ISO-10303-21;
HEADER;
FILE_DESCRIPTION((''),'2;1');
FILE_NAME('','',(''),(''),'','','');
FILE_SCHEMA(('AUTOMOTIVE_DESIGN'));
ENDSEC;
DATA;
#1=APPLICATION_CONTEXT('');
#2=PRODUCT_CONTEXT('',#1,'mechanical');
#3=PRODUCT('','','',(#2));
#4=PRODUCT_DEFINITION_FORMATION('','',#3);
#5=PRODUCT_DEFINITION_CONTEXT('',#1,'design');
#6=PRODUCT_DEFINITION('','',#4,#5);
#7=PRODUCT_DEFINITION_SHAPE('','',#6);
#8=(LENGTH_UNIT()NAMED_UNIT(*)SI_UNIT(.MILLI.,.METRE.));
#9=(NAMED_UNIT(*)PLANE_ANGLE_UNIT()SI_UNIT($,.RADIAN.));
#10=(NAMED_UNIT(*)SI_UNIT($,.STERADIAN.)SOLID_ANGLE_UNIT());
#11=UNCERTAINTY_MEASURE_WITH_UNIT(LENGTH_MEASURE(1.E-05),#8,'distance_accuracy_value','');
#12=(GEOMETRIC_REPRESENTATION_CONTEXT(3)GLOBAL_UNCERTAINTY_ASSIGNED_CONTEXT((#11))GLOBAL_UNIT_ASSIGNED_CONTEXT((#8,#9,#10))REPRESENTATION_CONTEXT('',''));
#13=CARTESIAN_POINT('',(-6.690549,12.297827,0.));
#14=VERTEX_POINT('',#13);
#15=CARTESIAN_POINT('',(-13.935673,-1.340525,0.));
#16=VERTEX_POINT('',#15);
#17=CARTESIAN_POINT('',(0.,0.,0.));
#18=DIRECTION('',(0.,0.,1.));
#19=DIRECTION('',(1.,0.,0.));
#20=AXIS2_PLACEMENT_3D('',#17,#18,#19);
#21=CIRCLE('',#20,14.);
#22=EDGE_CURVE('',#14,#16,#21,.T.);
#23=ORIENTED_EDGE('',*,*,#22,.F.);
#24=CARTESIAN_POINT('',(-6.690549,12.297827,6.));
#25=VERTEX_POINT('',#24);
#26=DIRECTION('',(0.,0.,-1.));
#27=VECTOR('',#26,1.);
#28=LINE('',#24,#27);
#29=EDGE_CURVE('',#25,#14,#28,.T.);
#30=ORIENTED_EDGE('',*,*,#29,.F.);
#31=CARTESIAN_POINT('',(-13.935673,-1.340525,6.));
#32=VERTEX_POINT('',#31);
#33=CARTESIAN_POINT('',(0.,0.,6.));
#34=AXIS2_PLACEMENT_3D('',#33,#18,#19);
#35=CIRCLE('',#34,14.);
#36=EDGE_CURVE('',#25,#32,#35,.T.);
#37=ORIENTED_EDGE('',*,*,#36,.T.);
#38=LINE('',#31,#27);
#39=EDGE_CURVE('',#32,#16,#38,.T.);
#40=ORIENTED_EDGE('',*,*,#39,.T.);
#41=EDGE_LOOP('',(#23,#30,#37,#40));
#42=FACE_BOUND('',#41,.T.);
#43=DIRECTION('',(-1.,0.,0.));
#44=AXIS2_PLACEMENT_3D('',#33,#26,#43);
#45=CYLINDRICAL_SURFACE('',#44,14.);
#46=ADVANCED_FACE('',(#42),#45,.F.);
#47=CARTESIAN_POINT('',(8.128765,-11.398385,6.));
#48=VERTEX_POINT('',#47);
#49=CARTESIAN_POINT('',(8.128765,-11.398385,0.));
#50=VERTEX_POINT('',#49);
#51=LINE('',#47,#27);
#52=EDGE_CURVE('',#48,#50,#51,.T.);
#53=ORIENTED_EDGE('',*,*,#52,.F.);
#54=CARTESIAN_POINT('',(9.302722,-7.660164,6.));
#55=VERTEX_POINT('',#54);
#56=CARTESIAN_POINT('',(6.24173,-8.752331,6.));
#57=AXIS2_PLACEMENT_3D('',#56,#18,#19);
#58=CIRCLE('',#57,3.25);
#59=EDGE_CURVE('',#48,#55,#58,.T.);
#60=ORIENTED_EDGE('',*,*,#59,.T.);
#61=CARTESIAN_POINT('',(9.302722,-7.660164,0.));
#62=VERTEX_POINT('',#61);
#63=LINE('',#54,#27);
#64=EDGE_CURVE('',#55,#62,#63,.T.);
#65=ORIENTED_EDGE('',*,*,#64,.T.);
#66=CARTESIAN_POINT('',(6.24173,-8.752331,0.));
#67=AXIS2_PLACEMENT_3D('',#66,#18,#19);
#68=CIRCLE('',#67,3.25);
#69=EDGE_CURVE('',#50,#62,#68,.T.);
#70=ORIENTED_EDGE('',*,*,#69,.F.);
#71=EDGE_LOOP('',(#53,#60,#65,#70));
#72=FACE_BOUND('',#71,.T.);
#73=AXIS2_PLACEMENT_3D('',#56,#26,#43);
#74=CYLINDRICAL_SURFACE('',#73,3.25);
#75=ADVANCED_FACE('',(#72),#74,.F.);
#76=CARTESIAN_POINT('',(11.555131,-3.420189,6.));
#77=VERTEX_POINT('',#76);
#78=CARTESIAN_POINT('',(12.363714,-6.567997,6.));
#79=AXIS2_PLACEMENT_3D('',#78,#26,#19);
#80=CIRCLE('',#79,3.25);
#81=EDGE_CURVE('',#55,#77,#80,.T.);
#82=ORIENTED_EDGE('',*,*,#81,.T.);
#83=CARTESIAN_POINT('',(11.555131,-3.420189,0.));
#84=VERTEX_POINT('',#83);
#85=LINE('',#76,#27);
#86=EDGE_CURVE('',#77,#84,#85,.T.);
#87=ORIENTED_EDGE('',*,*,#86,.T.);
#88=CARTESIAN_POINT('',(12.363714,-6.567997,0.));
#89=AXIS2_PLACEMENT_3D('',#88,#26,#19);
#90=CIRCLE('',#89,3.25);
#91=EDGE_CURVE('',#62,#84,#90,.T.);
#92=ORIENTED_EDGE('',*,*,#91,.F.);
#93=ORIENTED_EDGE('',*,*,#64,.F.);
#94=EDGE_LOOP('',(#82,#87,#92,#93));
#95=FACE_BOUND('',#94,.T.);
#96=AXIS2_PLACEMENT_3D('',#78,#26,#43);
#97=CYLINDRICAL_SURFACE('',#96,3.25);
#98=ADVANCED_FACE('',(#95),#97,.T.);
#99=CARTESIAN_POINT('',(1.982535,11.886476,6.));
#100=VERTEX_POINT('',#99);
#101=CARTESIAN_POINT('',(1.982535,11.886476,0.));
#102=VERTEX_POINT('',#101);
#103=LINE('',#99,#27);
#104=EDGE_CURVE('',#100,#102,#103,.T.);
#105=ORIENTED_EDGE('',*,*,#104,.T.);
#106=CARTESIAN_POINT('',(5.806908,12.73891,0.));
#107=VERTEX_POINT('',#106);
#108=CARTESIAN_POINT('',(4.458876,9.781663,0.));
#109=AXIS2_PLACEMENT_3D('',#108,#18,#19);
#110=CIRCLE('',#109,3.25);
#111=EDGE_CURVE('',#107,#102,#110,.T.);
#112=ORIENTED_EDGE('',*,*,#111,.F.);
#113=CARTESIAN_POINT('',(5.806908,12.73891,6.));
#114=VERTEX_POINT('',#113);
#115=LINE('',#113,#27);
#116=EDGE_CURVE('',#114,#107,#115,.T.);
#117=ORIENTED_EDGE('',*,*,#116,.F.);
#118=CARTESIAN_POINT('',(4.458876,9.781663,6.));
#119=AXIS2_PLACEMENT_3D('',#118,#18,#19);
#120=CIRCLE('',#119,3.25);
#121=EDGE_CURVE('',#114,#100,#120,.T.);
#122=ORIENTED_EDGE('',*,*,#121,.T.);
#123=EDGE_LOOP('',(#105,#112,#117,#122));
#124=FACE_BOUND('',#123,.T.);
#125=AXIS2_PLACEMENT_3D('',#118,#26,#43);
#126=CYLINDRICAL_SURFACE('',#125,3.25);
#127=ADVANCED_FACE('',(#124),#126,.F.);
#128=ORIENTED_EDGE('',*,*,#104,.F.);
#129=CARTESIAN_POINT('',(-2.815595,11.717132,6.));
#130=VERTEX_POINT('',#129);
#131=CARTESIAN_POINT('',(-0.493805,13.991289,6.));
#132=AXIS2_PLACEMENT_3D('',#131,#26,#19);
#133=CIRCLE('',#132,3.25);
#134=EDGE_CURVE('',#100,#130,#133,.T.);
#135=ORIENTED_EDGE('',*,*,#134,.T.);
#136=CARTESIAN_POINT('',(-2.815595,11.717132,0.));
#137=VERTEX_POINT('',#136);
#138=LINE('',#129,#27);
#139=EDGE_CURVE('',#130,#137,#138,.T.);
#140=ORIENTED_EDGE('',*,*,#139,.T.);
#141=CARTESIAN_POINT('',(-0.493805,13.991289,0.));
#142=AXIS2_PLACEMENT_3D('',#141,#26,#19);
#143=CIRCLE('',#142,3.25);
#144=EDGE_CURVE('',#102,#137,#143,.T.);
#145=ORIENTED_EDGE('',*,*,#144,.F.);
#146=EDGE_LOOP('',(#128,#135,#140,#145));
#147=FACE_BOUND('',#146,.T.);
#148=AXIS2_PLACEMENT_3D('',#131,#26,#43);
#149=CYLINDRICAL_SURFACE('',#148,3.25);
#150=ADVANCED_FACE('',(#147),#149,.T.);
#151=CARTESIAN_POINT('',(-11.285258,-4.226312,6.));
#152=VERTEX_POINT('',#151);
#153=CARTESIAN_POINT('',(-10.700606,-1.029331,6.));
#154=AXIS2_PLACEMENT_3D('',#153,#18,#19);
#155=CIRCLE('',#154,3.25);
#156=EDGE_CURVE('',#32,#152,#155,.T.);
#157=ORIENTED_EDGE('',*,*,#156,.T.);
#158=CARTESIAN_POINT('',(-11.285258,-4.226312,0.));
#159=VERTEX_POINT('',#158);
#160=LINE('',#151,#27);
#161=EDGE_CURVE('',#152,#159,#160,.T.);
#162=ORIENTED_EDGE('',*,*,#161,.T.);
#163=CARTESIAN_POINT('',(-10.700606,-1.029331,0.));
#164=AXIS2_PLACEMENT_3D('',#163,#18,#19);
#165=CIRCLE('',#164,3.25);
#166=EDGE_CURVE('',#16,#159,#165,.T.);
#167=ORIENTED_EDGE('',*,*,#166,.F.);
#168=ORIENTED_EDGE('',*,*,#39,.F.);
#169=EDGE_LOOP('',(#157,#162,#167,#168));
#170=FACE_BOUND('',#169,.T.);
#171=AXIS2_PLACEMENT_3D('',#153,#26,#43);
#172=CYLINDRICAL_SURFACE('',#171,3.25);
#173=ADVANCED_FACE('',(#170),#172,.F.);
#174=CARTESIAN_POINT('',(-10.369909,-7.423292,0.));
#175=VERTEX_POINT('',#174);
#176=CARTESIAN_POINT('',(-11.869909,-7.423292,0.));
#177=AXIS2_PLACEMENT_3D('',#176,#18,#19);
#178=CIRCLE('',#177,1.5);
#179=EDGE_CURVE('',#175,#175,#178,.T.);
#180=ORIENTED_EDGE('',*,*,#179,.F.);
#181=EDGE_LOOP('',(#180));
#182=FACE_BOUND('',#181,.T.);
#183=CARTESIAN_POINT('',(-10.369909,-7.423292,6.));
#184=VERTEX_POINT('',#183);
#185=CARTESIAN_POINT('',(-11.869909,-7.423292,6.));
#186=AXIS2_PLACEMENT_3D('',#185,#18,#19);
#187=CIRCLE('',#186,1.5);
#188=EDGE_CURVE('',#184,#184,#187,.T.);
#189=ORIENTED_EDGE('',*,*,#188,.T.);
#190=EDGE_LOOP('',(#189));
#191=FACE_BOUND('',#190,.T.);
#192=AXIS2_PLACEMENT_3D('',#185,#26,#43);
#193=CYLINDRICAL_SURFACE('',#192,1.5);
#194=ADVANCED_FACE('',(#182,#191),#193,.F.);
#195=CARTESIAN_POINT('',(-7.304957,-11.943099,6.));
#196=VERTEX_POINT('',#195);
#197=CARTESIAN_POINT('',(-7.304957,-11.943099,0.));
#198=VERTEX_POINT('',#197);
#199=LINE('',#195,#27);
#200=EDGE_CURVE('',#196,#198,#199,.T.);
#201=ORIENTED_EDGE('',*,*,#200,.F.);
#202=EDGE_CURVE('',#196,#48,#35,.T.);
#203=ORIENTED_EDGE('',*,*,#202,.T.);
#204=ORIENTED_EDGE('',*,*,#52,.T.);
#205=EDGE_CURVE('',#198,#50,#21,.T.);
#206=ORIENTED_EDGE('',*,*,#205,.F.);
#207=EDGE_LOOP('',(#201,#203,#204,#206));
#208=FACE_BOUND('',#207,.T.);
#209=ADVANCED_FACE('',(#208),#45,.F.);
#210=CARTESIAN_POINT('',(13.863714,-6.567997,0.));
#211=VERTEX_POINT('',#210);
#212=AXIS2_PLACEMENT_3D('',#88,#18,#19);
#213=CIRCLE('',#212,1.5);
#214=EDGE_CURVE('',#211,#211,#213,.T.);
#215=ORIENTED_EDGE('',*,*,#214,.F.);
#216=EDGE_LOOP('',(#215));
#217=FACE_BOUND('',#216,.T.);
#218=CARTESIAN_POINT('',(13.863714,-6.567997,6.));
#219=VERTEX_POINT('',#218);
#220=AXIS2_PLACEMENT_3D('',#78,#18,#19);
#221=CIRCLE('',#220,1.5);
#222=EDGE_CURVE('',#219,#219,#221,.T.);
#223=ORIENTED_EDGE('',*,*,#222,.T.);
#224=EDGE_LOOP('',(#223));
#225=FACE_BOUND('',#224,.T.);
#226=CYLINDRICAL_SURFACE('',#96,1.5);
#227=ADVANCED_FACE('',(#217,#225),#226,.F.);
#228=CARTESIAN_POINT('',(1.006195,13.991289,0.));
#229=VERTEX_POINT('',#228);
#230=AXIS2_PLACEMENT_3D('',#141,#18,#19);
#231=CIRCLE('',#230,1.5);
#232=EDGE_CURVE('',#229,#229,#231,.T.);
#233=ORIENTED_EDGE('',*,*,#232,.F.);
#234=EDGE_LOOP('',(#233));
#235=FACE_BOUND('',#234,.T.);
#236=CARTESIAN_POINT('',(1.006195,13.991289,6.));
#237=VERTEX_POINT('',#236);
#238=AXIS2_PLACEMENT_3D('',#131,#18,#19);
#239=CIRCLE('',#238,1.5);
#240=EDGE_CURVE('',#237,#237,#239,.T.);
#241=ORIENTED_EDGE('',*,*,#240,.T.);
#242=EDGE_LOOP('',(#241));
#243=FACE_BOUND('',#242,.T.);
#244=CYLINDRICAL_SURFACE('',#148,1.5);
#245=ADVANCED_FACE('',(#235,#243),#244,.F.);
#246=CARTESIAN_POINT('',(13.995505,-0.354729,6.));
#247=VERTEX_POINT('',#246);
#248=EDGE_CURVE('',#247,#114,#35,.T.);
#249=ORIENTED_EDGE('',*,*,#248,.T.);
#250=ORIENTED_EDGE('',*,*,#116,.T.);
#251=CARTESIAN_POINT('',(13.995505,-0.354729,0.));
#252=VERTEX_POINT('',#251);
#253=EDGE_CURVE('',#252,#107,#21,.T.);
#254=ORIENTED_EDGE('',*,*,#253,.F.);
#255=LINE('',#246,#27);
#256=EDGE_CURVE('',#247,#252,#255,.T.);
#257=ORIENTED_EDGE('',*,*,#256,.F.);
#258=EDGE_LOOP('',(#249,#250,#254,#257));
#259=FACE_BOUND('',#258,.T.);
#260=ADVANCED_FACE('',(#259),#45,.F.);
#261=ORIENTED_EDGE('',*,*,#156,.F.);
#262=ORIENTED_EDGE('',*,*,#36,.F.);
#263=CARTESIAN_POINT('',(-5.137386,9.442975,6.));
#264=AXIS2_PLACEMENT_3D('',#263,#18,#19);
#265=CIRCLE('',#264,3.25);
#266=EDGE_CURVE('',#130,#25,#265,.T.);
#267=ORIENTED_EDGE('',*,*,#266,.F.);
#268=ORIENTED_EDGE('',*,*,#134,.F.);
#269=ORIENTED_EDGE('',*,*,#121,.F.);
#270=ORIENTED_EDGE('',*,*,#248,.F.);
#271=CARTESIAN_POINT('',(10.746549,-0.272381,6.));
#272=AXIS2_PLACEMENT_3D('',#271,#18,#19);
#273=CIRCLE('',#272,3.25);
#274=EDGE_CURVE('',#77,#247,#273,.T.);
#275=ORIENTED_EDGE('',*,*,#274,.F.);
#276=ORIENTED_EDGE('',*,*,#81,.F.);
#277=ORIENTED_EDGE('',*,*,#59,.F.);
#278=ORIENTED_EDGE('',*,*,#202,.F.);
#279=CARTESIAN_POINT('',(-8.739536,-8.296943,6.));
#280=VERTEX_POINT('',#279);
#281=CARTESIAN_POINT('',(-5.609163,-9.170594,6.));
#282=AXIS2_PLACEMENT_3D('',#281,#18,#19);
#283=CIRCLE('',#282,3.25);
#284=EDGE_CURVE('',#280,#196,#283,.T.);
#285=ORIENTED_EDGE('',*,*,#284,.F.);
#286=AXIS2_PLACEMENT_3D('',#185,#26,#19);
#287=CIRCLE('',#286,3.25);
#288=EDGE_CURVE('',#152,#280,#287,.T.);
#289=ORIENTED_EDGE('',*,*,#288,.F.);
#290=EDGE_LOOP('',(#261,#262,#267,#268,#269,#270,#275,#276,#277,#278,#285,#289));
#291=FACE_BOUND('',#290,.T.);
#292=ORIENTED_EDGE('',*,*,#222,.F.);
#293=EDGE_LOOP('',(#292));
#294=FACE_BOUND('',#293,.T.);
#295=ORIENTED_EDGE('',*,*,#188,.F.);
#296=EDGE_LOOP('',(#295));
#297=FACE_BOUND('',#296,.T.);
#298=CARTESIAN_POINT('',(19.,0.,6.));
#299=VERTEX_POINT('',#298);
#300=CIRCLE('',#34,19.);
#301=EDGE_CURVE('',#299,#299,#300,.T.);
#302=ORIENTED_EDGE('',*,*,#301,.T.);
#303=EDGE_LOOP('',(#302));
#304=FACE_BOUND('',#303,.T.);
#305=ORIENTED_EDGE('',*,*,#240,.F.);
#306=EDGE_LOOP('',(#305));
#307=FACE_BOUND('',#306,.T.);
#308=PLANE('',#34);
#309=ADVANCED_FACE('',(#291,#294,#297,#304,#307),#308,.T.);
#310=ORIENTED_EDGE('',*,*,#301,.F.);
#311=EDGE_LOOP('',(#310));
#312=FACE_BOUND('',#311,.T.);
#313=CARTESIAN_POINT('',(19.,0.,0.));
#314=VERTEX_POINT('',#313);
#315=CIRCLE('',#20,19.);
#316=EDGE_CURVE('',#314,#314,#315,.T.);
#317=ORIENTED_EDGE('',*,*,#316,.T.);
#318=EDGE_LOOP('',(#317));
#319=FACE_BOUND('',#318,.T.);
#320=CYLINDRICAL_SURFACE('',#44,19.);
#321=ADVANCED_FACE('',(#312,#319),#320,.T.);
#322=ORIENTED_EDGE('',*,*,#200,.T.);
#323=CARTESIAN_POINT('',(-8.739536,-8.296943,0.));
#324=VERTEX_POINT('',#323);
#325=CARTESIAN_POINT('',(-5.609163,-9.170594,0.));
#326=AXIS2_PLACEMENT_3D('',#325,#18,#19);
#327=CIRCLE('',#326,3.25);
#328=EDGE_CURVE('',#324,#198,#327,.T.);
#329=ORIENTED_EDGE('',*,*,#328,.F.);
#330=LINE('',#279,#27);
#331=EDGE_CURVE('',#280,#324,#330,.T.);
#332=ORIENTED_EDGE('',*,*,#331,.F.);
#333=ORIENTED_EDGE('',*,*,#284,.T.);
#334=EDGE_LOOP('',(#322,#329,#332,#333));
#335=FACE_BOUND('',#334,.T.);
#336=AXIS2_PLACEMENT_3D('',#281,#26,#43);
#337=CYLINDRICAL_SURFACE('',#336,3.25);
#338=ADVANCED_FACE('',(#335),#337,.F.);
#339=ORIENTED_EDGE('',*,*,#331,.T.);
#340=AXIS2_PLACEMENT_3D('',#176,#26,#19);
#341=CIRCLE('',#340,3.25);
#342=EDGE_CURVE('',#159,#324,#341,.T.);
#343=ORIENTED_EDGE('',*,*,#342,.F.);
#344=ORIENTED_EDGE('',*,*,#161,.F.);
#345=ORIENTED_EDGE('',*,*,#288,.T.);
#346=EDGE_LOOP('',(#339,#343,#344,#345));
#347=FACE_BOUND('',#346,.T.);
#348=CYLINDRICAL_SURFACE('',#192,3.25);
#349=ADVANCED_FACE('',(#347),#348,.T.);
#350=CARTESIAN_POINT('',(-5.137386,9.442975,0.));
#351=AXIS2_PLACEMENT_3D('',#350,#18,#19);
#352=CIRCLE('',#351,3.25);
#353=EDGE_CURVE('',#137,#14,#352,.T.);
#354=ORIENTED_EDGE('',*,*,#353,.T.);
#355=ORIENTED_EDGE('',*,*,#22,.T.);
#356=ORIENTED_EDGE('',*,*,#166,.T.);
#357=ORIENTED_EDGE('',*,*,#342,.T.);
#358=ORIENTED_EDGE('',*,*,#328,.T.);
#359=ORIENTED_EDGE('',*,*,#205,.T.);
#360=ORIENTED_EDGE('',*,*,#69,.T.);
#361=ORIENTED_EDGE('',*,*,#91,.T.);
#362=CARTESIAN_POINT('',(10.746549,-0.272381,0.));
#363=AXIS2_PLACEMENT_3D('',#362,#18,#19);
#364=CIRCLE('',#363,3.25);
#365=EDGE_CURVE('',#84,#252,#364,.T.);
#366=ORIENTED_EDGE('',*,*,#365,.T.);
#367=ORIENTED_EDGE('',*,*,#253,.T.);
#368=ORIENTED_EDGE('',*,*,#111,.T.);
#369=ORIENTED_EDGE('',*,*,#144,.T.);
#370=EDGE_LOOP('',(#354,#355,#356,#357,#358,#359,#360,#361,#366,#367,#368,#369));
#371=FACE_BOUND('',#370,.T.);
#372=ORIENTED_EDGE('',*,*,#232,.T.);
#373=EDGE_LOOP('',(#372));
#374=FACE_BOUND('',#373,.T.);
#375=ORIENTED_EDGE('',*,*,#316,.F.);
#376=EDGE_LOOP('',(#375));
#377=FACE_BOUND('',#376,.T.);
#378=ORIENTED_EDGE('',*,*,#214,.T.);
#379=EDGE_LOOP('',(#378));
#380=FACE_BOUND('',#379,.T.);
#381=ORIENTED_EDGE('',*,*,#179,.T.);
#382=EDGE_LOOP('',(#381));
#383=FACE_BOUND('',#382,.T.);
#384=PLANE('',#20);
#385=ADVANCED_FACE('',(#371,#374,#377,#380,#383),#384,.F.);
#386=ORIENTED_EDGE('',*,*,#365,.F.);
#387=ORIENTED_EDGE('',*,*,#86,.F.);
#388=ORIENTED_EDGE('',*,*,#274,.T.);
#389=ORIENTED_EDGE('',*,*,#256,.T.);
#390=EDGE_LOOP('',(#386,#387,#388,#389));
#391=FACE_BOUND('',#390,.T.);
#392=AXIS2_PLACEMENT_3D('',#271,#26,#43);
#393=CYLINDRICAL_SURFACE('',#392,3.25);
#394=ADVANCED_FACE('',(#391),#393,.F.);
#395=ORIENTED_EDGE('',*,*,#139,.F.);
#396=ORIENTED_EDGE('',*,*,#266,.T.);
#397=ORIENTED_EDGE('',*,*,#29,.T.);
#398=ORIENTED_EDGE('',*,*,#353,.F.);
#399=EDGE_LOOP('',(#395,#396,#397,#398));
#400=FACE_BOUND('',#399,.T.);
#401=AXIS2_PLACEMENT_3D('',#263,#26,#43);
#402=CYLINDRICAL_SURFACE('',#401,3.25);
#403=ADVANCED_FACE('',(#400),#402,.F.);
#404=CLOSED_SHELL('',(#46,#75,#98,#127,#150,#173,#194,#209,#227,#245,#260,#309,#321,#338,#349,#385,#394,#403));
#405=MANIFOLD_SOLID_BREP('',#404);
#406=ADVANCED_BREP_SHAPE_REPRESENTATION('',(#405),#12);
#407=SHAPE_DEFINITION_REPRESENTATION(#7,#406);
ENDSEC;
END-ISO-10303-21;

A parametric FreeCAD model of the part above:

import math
import FreeCAD as App
import Part
import Sketcher
from FreeCAD import Vector
Q = App.Units.Quantity

doc = App.newDocument("Part")
params = doc.addObject("Spreadsheet::Sheet", "Params")
for row, (alias, value) in enumerate([
    ("sketch1_diameter", "38 mm"),
    ("sketch1_diameter2", "3 mm"),
    ("sketch1_radius", "14 mm"),
    ("sketch1_radius2", "3.25 mm"),
    ("pad1_length", "6 mm"),
], start=1):
    params.set(f"A{row}", alias)
    params.set(f"B{row}", "=" + value)
    params.setAlias(f"B{row}", alias)

body = doc.addObject("PartDesign::Body", "Body")

sketch1 = body.newObject("Sketcher::SketchObject", "Sketch")
sketch1.AttachmentSupport = (doc.getObject("XY_Plane"), [""])
sketch1.MapMode = "FlatFace"
sketch1.addGeometry([
    Part.Circle(Vector(0, 0, 0), Vector(0, 0, 1), 19),
    Part.Circle(Vector(-11.869909, -7.423292, 0), Vector(0, 0, 1), 1.5),
    Part.ArcOfCircle(Part.Circle(Vector(-5.137386, 9.442975, 0), Vector(0, 0, 1), 3.25), math.radians(44.406197), math.radians(118.548098)),
    Part.ArcOfCircle(Part.Circle(Vector(-0.493805, 13.991289, 0), Vector(0, 0, 1), 3.25), math.radians(-135.593803), math.radians(-40.363509)),
    Part.ArcOfCircle(Part.Circle(Vector(4.458876, 9.781663, 0), Vector(0, 0, 1), 3.25), math.radians(65.49459), math.radians(139.636491)),
    Part.ArcOfCircle(Part.Circle(Vector(0, 0, 0), Vector(0, 0, 1), 14), math.radians(-1.451902), math.radians(65.49459)),
    Part.ArcOfCircle(Part.Circle(Vector(10.746549, -0.272381, 0), Vector(0, 0, 1), 3.25), math.radians(-75.593803), math.radians(-1.451902)),
    Part.ArcOfCircle(Part.Circle(Vector(12.363714, -6.567997, 0), Vector(0, 0, 1), 3.25), math.radians(104.406197), math.radians(199.636491)),
    Part.ArcOfCircle(Part.Circle(Vector(6.24173, -8.752331, 0), Vector(0, 0, 1), 3.25), math.radians(-54.50541), math.radians(19.636491)),
    Part.ArcOfCircle(Part.Circle(Vector(0, 0, 0), Vector(0, 0, 1), 14), math.radians(-121.451902), math.radians(-54.50541)),
    Part.ArcOfCircle(Part.Circle(Vector(-5.609163, -9.170594, 0), Vector(0, 0, 1), 3.25), math.radians(164.406197), math.radians(238.548098)),
    Part.ArcOfCircle(Part.Circle(Vector(-11.869909, -7.423292, 0), Vector(0, 0, 1), 3.25), math.radians(-15.593803), math.radians(79.636491)),
    Part.ArcOfCircle(Part.Circle(Vector(-10.700606, -1.029331, 0), Vector(0, 0, 1), 3.25), math.radians(-174.50541), math.radians(-100.363509)),
    Part.ArcOfCircle(Part.Circle(Vector(0, 0, 0), Vector(0, 0, 1), 14), math.radians(118.548098), math.radians(185.49459)),
    Part.Circle(Vector(12.363714, -6.567997, 0), Vector(0, 0, 1), 1.5),
    Part.Circle(Vector(-0.493805, 13.991289, 0), Vector(0, 0, 1), 1.5),
], False)
sketch1.addConstraint([
    Sketcher.Constraint("Tangent", 2, 1, 3, 1),
    Sketcher.Constraint("Tangent", 3, 2, 4, 2),
    Sketcher.Constraint("Tangent", 4, 1, 5, 2),
    Sketcher.Constraint("Tangent", 5, 1, 6, 2),
    Sketcher.Constraint("Tangent", 6, 1, 7, 1),
    Sketcher.Constraint("Tangent", 7, 2, 8, 2),
    Sketcher.Constraint("Tangent", 8, 1, 9, 2),
    Sketcher.Constraint("Tangent", 9, 1, 10, 2),
    Sketcher.Constraint("Tangent", 10, 1, 11, 1),
    Sketcher.Constraint("Tangent", 11, 2, 12, 2),
    Sketcher.Constraint("Tangent", 12, 1, 13, 2),
    Sketcher.Constraint("Tangent", 13, 1, 2, 2),
    Sketcher.Constraint("Coincident", 0, 3, -1, 1),
    Sketcher.Constraint("Coincident", 5, 3, -1, 1),
    Sketcher.Constraint("Coincident", 9, 3, -1, 1),
    Sketcher.Constraint("Coincident", 13, 3, -1, 1),
    Sketcher.Constraint("Coincident", 11, 3, 1, 3),
    Sketcher.Constraint("Coincident", 14, 3, 7, 3),
    Sketcher.Constraint("Coincident", 15, 3, 3, 3),
    Sketcher.Constraint("Equal", 2, 3),
    Sketcher.Constraint("Equal", 3, 4),
    Sketcher.Constraint("Equal", 4, 6),
    Sketcher.Constraint("Equal", 6, 7),
    Sketcher.Constraint("Equal", 7, 8),
    Sketcher.Constraint("Equal", 5, 9),
    Sketcher.Constraint("Equal", 8, 10),
    Sketcher.Constraint("Equal", 10, 11),
    Sketcher.Constraint("Equal", 11, 12),
    Sketcher.Constraint("Equal", 9, 13),
    Sketcher.Constraint("Equal", 1, 14),
    Sketcher.Constraint("Equal", 14, 15),
    Sketcher.Constraint("Diameter", 0, Q("38 mm")),
    Sketcher.Constraint("Diameter", 1, Q("3 mm")),
    Sketcher.Constraint("Radius", 5, Q("14 mm")),
    Sketcher.Constraint("Radius", 2, Q("3.25 mm")),
    Sketcher.Constraint("DistanceY", 9, 1, -1, 1, Q("11.943099 mm")),
    Sketcher.Constraint("DistanceX", 2, 3, 7, 3, Q("17.501099 mm")),
    Sketcher.Constraint("DistanceY", 10, 3, 1, 3, Q("1.747302 mm")),
    Sketcher.Constraint("DistanceY", 2, 3, 3, 2, Q("2.443501 mm")),
    Sketcher.Constraint("DistanceX", 8, 3, 6, 1, Q("5.313401 mm")),
    Sketcher.Constraint("DistanceY", -1, 1, 3, 3, Q("13.991289 mm")),
])
sketch1.setExpression("Constraints[31]", "Params.sketch1_diameter")
sketch1.setExpression("Constraints[32]", "Params.sketch1_diameter2")
sketch1.setExpression("Constraints[33]", "Params.sketch1_radius")
sketch1.setExpression("Constraints[34]", "Params.sketch1_radius2")
pad1 = body.newObject("PartDesign::Pad", "Pad")
pad1.Profile = sketch1
pad1.setExpression("Length", "Params.pad1_length")

doc.recompute()
